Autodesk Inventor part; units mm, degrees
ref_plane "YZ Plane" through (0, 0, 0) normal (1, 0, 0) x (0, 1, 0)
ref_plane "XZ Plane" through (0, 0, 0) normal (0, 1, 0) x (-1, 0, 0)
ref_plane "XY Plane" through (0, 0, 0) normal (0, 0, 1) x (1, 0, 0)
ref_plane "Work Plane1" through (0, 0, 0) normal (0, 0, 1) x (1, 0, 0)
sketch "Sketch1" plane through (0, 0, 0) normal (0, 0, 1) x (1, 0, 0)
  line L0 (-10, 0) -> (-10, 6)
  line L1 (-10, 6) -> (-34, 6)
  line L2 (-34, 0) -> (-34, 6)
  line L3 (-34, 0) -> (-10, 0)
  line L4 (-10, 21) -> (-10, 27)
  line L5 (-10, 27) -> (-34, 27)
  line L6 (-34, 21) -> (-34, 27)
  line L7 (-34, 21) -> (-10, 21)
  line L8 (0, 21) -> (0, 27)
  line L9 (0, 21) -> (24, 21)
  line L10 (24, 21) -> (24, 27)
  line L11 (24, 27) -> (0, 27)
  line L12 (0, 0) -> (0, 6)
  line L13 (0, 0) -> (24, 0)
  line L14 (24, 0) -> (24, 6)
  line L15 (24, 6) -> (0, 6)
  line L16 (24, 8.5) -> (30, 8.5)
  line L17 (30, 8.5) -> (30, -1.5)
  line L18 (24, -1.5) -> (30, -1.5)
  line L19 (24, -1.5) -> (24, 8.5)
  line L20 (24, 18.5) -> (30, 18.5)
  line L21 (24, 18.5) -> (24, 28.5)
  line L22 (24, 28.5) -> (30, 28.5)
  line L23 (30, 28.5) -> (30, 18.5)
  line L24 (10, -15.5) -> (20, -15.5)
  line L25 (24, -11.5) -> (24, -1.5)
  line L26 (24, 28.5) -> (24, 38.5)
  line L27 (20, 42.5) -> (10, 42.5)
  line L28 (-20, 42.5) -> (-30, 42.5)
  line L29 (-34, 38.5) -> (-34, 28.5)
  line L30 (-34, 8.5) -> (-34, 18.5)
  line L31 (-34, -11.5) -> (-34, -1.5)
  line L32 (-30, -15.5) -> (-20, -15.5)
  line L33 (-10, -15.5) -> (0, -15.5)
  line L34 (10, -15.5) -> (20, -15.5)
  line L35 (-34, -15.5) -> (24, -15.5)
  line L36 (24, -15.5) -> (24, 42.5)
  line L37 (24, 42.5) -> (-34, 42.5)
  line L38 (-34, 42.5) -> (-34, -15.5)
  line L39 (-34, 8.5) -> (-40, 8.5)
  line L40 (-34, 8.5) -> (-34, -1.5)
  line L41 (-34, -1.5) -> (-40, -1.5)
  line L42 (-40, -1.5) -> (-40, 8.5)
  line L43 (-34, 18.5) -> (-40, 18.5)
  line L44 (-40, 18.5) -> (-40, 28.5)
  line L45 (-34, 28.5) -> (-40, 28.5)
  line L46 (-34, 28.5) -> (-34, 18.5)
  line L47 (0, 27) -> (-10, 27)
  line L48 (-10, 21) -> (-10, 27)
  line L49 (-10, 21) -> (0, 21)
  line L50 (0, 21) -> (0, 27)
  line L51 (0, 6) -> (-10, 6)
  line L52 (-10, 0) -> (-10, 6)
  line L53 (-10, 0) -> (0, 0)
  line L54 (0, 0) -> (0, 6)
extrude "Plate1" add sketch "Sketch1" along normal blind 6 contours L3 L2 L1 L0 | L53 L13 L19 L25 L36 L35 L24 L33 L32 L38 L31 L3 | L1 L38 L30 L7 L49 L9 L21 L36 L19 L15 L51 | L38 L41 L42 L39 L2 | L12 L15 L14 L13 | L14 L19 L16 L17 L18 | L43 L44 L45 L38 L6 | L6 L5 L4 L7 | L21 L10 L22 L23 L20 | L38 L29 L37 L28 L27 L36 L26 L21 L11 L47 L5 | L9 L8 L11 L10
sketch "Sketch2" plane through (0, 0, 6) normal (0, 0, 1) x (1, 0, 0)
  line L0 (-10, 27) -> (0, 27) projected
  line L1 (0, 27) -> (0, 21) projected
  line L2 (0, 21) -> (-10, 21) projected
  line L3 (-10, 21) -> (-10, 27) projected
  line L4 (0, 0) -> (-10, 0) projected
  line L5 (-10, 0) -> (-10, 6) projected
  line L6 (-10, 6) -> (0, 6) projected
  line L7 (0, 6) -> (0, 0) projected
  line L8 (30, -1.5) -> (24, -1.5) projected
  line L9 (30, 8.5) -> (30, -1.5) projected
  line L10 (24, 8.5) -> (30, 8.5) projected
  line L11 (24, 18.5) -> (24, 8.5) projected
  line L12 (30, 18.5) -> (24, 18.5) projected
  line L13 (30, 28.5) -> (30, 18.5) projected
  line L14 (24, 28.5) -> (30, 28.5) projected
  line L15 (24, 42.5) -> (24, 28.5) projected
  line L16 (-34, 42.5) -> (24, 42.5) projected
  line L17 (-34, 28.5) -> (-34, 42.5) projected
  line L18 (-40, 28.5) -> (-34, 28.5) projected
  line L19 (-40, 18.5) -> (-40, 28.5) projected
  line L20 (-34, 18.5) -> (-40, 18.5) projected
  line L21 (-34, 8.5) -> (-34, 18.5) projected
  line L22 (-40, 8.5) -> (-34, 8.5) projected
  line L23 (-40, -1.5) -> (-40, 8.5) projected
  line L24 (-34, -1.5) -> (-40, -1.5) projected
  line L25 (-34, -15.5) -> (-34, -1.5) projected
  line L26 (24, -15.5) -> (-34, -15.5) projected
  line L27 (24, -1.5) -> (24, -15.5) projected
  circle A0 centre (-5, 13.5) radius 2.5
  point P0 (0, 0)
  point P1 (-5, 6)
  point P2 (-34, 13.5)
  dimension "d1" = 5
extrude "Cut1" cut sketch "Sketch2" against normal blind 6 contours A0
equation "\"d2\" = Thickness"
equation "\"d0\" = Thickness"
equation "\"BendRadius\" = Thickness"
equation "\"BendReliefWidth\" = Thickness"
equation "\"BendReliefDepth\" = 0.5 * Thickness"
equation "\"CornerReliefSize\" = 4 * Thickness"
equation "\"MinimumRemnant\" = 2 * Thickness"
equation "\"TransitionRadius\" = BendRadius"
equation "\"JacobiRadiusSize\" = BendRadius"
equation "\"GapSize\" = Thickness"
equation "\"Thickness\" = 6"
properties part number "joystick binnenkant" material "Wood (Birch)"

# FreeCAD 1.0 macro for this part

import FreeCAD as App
import Part
import Sketcher

V = App.Vector

doc = App.newDocument("Part")
body = doc.addObject("PartDesign::Body", "Body")

# Sketch on XY plane
sketch1 = body.newObject("Sketcher::SketchObject", "Sketch")
sketch1.AttachmentSupport = (doc.getObject("XY_Plane"), [""])
sketch1.MapMode = "FlatFace"
sketch1.addGeometry([
    Part.LineSegment(V(24, -2, 0), V(30, -2, 0)),  # 0
    Part.LineSegment(V(30, -2, 0), V(30, 8, 0)),  # 1
    Part.LineSegment(V(30, 8, 0), V(24, 8, 0)),  # 2
    Part.LineSegment(V(24, 8, 0), V(24, 18, 0)),  # 3
    Part.LineSegment(V(24, 18, 0), V(30, 18, 0)),  # 4
    Part.LineSegment(V(30, 18, 0), V(30, 28, 0)),  # 5
    Part.LineSegment(V(30, 28, 0), V(24, 28, 0)),  # 6
    Part.LineSegment(V(24, 28, 0), V(24, 42, 0)),  # 7
    Part.LineSegment(V(24, 42, 0), V(-34, 42, 0)),  # 8
    Part.LineSegment(V(-34, 42, 0), V(-34, 28, 0)),  # 9
    Part.LineSegment(V(-34, 28, 0), V(-40, 28, 0)),  # 10
    Part.LineSegment(V(-40, 28, 0), V(-40, 18, 0)),  # 11
    Part.LineSegment(V(-40, 18, 0), V(-34, 18, 0)),  # 12
    Part.LineSegment(V(-34, 18, 0), V(-34, 8, 0)),  # 13
    Part.LineSegment(V(-34, 8, 0), V(-40, 8, 0)),  # 14
    Part.LineSegment(V(-40, 8, 0), V(-40, -2, 0)),  # 15
    Part.LineSegment(V(-40, -2, 0), V(-34, -2, 0)),  # 16
    Part.LineSegment(V(-34, -2, 0), V(-34, -16, 0)),  # 17
    Part.LineSegment(V(-34, -16, 0), V(24, -16, 0)),  # 18
    Part.LineSegment(V(24, -16, 0), V(24, -2, 0)),  # 19
    Part.LineSegment(V(-10, 0, 0), V(-10, 6, 0)),  # 20
    Part.LineSegment(V(-10, 6, 0), V(0, 6, 0)),  # 21
    Part.LineSegment(V(0, 6, 0), V(0, 0, 0)),  # 22
    Part.LineSegment(V(0, 0, 0), V(-10, 0, 0)),  # 23
    Part.LineSegment(V(0, 21, 0), V(-10, 21, 0)),  # 24
    Part.LineSegment(V(-10, 21, 0), V(-10, 27, 0)),  # 25
    Part.LineSegment(V(-10, 27, 0), V(0, 27, 0)),  # 26
    Part.LineSegment(V(0, 27, 0), V(0, 21, 0)),  # 27
], False)
sketch1.addConstraint([
    Sketcher.Constraint("Coincident", 0, 2, 1, 1),
    Sketcher.Constraint("Coincident", 1, 2, 2, 1),
    Sketcher.Constraint("Coincident", 2, 2, 3, 1),
    Sketcher.Constraint("Coincident", 3, 2, 4, 1),
    Sketcher.Constraint("Coincident", 4, 2, 5, 1),
    Sketcher.Constraint("Coincident", 5, 2, 6, 1),
    Sketcher.Constraint("Coincident", 6, 2, 7, 1),
    Sketcher.Constraint("Coincident", 7, 2, 8, 1),
    Sketcher.Constraint("Coincident", 8, 2, 9, 1),
    Sketcher.Constraint("Coincident", 9, 2, 10, 1),
    Sketcher.Constraint("Coincident", 10, 2, 11, 1),
    Sketcher.Constraint("Coincident", 11, 2, 12, 1),
    Sketcher.Constraint("Coincident", 12, 2, 13, 1),
    Sketcher.Constraint("Coincident", 13, 2, 14, 1),
    Sketcher.Constraint("Coincident", 14, 2, 15, 1),
    Sketcher.Constraint("Coincident", 15, 2, 16, 1),
    Sketcher.Constraint("Coincident", 16, 2, 17, 1),
    Sketcher.Constraint("Coincident", 17, 2, 18, 1),
    Sketcher.Constraint("Coincident", 18, 2, 19, 1),
    Sketcher.Constraint("Coincident", 19, 2, 0, 1),
    Sketcher.Constraint("Coincident", 20, 2, 21, 1),
    Sketcher.Constraint("Coincident", 21, 2, 22, 1),
    Sketcher.Constraint("Coincident", 22, 2, 23, 1),
    Sketcher.Constraint("Coincident", 23, 2, 20, 1),
    Sketcher.Constraint("Coincident", 24, 2, 25, 1),
    Sketcher.Constraint("Coincident", 25, 2, 26, 1),
    Sketcher.Constraint("Coincident", 26, 2, 27, 1),
    Sketcher.Constraint("Coincident", 27, 2, 24, 1),
    Sketcher.Constraint("Horizontal", 0),
    Sketcher.Constraint("Vertical", 1),
    Sketcher.Constraint("Horizontal", 2),
    Sketcher.Constraint("Vertical", 3),
    Sketcher.Constraint("Horizontal", 4),
    Sketcher.Constraint("Vertical", 5),
    Sketcher.Constraint("Horizontal", 6),
    Sketcher.Constraint("Vertical", 7),
    Sketcher.Constraint("Horizontal", 8),
    Sketcher.Constraint("Vertical", 9),
    Sketcher.Constraint("Horizontal", 10),
    Sketcher.Constraint("Vertical", 11),
    Sketcher.Constraint("Horizontal", 12),
    Sketcher.Constraint("Vertical", 13),
    Sketcher.Constraint("Horizontal", 14),
    Sketcher.Constraint("Vertical", 15),
    Sketcher.Constraint("Horizontal", 16),
    Sketcher.Constraint("Vertical", 17),
    Sketcher.Constraint("Horizontal", 18),
    Sketcher.Constraint("Vertical", 19),
    Sketcher.Constraint("Vertical", 20),
    Sketcher.Constraint("Horizontal", 21),
    Sketcher.Constraint("Vertical", 22),
    Sketcher.Constraint("Horizontal", 23),
    Sketcher.Constraint("Horizontal", 24),
    Sketcher.Constraint("Vertical", 25),
    Sketcher.Constraint("Horizontal", 26),
    Sketcher.Constraint("Vertical", 27),
    Sketcher.Constraint("Coincident", 22, 2, -1, 1),
    Sketcher.Constraint("PointOnObject", 26, 2, -2),
    Sketcher.Constraint("Horizontal", 6, 2, 9, 2),
    Sketcher.Constraint("Horizontal", 4, 2, 11, 2),
    Sketcher.Constraint("Horizontal", 2, 2, 13, 2),
    Sketcher.Constraint("Horizontal", 0, 2, 15, 2),
    Sketcher.Constraint("Vertical", 1, 2, 4, 2),
    Sketcher.Constraint("Vertical", 3, 2, 6, 2),
    Sketcher.Constraint("Vertical", 9, 2, 12, 2),
    Sketcher.Constraint("Vertical", 11, 2, 14, 2),
    Sketcher.Constraint("Vertical", 13, 2, 16, 2),
    Sketcher.Constraint("Vertical", 7, 2, 18, 2),
    Sketcher.Constraint("Vertical", 23, 2, 24, 2),
    Sketcher.Constraint("Equal", 6, 10),
    Sketcher.Constraint("Equal", 26, 1),
    Sketcher.Constraint("Equal", 1, 3),
    Sketcher.Constraint("Equal", 3, 5),
    Sketcher.Constraint("Equal", 9, 17),
    Sketcher.Constraint("Equal", 16, 20),
    Sketcher.Constraint("Equal", 22, 25),
    Sketcher.Constraint("DistanceX", 0, 1, 0, 2, 6.0),
    Sketcher.Constraint("DistanceX", 8, 2, 8, 1, 58.0),
    Sketcher.Constraint("DistanceX", 21, 1, 21, 2, 10.0),
    Sketcher.Constraint("DistanceY", 7, 1, 7, 2, 14.0),
    Sketcher.Constraint("DistanceX", -1, 1, 0, 2, 30.0),
    Sketcher.Constraint("DistanceY", -1, 1, 24, 2, 21.0),
    Sketcher.Constraint("DistanceY", 0, 2, -1, 1, 1.5),
])
pad1 = body.newObject("PartDesign::Pad", "Pad")
pad1.Profile = sketch1
pad1.Length = 6

# Sketch on XY plane
sketch2 = body.newObject("Sketcher::SketchObject", "Sketch001")
sketch2.AttachmentSupport = (doc.getObject("XY_Plane"), [""])
sketch2.MapMode = "FlatFace"
sketch2.AttachmentOffset = App.Placement(V(0, 0, 6), App.Rotation())
sketch2.addGeometry(Part.Circle(V(-5, 13.5, 0), V(0, 0, 1), 2.5), False)
sketch2.addConstraint([
    Sketcher.Constraint("Diameter", 0, 5.0),
    Sketcher.Constraint("DistanceX", 0, 3, -1, 1, 5.0),
    Sketcher.Constraint("DistanceY", -1, 1, 0, 3, 13.5),
])
pocket1 = body.newObject("PartDesign::Pocket", "Pocket")
pocket1.Profile = sketch2
pocket1.Length = 6

doc.recompute()
